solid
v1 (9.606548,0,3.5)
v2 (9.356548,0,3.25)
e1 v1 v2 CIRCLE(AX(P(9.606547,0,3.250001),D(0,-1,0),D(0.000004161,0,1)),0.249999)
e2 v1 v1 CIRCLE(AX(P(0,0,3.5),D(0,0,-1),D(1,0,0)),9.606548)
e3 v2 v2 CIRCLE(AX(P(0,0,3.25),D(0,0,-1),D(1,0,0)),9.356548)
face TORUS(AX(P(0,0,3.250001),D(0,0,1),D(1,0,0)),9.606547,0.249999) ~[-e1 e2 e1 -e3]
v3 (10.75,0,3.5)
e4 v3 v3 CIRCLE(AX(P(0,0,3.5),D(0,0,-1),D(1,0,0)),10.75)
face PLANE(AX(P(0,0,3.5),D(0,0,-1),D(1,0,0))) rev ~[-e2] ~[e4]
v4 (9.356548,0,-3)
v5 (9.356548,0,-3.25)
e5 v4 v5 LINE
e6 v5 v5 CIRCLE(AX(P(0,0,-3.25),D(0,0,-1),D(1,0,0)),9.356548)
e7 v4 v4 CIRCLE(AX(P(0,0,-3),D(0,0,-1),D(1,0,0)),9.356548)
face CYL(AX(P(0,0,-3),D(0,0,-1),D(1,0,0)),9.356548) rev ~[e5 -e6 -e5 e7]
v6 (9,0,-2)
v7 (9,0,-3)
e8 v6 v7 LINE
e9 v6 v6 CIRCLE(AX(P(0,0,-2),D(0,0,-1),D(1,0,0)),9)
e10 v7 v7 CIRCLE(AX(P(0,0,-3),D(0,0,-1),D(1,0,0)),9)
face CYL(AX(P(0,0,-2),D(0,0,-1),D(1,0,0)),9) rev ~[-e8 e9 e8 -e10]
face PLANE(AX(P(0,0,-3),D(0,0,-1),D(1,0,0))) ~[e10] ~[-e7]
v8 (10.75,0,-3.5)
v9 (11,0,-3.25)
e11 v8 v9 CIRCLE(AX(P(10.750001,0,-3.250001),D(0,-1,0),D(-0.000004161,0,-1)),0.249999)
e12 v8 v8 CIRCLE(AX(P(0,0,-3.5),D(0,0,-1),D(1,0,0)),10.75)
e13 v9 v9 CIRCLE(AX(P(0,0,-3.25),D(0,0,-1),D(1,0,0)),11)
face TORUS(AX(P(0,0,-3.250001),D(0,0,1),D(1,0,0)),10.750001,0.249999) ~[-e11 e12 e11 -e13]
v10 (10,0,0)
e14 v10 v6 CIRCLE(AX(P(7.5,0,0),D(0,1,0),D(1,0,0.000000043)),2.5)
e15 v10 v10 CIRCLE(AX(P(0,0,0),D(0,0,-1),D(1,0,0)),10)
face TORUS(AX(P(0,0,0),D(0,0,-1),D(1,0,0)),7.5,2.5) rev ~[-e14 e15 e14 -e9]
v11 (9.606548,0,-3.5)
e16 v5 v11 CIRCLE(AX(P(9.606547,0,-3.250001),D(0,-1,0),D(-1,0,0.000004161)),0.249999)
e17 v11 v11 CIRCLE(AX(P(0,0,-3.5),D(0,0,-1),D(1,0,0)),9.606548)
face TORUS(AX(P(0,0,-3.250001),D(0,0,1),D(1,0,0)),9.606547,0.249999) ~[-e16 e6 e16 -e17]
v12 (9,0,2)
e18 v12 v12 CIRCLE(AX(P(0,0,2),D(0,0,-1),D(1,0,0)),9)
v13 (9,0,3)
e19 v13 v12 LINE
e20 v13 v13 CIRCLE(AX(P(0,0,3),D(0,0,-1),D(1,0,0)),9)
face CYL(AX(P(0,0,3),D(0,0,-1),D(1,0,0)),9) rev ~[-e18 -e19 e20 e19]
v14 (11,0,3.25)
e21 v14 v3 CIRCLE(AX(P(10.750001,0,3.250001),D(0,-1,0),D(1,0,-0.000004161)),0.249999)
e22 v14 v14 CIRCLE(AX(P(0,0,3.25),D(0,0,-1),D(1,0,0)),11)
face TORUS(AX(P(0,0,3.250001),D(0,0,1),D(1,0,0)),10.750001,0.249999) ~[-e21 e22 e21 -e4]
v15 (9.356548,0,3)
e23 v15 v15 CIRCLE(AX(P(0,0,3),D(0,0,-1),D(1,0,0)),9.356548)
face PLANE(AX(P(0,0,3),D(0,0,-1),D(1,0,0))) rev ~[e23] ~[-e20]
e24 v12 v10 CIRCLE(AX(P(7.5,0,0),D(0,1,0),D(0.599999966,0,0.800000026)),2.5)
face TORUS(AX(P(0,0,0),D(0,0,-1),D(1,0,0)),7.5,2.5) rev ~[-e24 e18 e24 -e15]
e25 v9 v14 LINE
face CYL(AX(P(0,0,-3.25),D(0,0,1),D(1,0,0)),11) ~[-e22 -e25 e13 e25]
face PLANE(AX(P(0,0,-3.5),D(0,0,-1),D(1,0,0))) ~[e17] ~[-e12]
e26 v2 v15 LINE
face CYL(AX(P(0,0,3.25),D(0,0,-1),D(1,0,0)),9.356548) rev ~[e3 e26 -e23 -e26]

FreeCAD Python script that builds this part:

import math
import FreeCAD as App
import Part
import Sketcher

doc = App.newDocument("Part")
params = doc.addObject("Spreadsheet::Sheet", "Params")
for row, (alias, value) in enumerate([
    ("sketch1_radius", "2.5 mm"),
    ("sketch1_height", "1 mm"),
    ("sketch1_radius2", "0.249999 mm"),
    ("sketch1_height2", "6.5 mm"),
    ("revolution_angle", "360 deg"),
], start=1):
    params.set(f"A{row}", alias)
    params.set(f"B{row}", "=" + value)
    params.setAlias(f"B{row}", alias)

body = doc.addObject("PartDesign::Body", "Body")

# Sketch on XZ plane
sketch1 = doc.addObject("Sketcher::SketchObject", "Sketch")
body.addObject(sketch1)
sketch1.AttachmentSupport = (doc.XZ_Plane, [""])
sketch1.MapMode = "FlatFace"
sketch1.addGeometry([
    Part.ArcOfCircle(Part.Circle(App.Vector(7.5, 0, 0), App.Vector(0, 0, 1), 2.5), math.radians(0), math.radians(53)),  # 0
    Part.ArcOfCircle(Part.Circle(App.Vector(7.5, 0, 0), App.Vector(0, 0, 1), 2.5), math.radians(-53), math.radians(0)),  # 1
    Part.LineSegment(App.Vector(9, -2, 0), App.Vector(9, -3, 0)),  # 2
    Part.LineSegment(App.Vector(9, -3, 0), App.Vector(9.36, -3, 0)),  # 3
    Part.LineSegment(App.Vector(9.36, -3, 0), App.Vector(9.36, -3.25, 0)),  # 4
    Part.ArcOfCircle(Part.Circle(App.Vector(9.61, -3.25, 0), App.Vector(0, 0, 1), 0.25), math.radians(180), math.radians(270)),  # 5
    Part.LineSegment(App.Vector(9.61, -3.5, 0), App.Vector(10.75, -3.5, 0)),  # 6
    Part.ArcOfCircle(Part.Circle(App.Vector(10.75, -3.25, 0), App.Vector(0, 0, 1), 0.25), math.radians(-90), math.radians(0)),  # 7
    Part.LineSegment(App.Vector(11, -3.25, 0), App.Vector(11, 3.25, 0)),  # 8
    Part.ArcOfCircle(Part.Circle(App.Vector(10.75, 3.25, 0), App.Vector(0, 0, 1), 0.25), math.radians(0), math.radians(90)),  # 9
    Part.LineSegment(App.Vector(10.75, 3.5, 0), App.Vector(9.61, 3.5, 0)),  # 10
    Part.ArcOfCircle(Part.Circle(App.Vector(9.61, 3.25, 0), App.Vector(0, 0, 1), 0.25), math.radians(90), math.radians(180)),  # 11
    Part.LineSegment(App.Vector(9.36, 3.25, 0), App.Vector(9.36, 3, 0)),  # 12
    Part.LineSegment(App.Vector(9.36, 3, 0), App.Vector(9, 3, 0)),  # 13
    Part.LineSegment(App.Vector(9, 3, 0), App.Vector(9, 2, 0)),  # 14
], False)
sketch1.addConstraint([
    Sketcher.Constraint("Tangent", 0, 1, 1, 2),
    Sketcher.Constraint("Coincident", 1, 1, 2, 1),
    Sketcher.Constraint("Coincident", 2, 2, 3, 1),
    Sketcher.Constraint("Coincident", 3, 2, 4, 1),
    Sketcher.Constraint("Coincident", 4, 2, 5, 1),
    Sketcher.Constraint("Coincident", 5, 2, 6, 1),
    Sketcher.Constraint("Coincident", 6, 2, 7, 1),
    Sketcher.Constraint("Coincident", 7, 2, 8, 1),
    Sketcher.Constraint("Coincident", 8, 2, 9, 1),
    Sketcher.Constraint("Coincident", 9, 2, 10, 1),
    Sketcher.Constraint("Coincident", 10, 2, 11, 1),
    Sketcher.Constraint("Coincident", 11, 2, 12, 1),
    Sketcher.Constraint("Coincident", 12, 2, 13, 1),
    Sketcher.Constraint("Coincident", 13, 2, 14, 1),
    Sketcher.Constraint("Coincident", 14, 2, 0, 2),
    Sketcher.Constraint("Vertical", 2),
    Sketcher.Constraint("Horizontal", 3),
    Sketcher.Constraint("Vertical", 4),
    Sketcher.Constraint("Horizontal", 6),
    Sketcher.Constraint("Vertical", 8),
    Sketcher.Constraint("Horizontal", 10),
    Sketcher.Constraint("Vertical", 12),
    Sketcher.Constraint("Horizontal", 13),
    Sketcher.Constraint("Vertical", 14),
    Sketcher.Constraint("Equal", 0, 1),
    Sketcher.Constraint("Equal", 5, 7),
    Sketcher.Constraint("Equal", 7, 9),
    Sketcher.Constraint("Equal", 9, 11),
    Sketcher.Constraint("Symmetric", 5, 3, 11, 3, -1),
    Sketcher.Constraint("Symmetric", 2, 2, 13, 2, -1),
    Sketcher.Constraint("PointOnObject", 0, 3, -1),
    Sketcher.Constraint("PointOnObject", 0, 1, -1),
    Sketcher.Constraint("Horizontal", 7, 3, 4, 2),
    Sketcher.Constraint("Horizontal", 4, 2, 7, 2),
    Sketcher.Constraint("Horizontal", 11, 3, 8, 2),
    Sketcher.Constraint("Horizontal", 8, 2, 11, 2),
    Sketcher.Constraint("Vertical", 11, 3, 5, 2),
    Sketcher.Constraint("Vertical", 9, 3, 6, 2),
    Sketcher.Constraint("Vertical", 6, 2, 9, 2),
    Sketcher.Constraint("Vertical", 5, 2, 10, 2),
    Sketcher.Constraint("Radius", 0, 2.5),
    Sketcher.Constraint("DistanceY", 2, 2, 2, 1, 1.0),
    Sketcher.Constraint("Radius", 5, 0.249999),
    Sketcher.Constraint("DistanceY", 8, 1, 8, 2, 6.5),
    Sketcher.Constraint("DistanceX", -1, 1, 0, 1, 10.0),
    Sketcher.Constraint("DistanceX", -1, 1, 1, 1, 9.0),
    Sketcher.Constraint("DistanceX", -1, 1, 7, 2, 11.0),
    Sketcher.Constraint("DistanceX", 3, 1, 3, 2, 0.356548),
])
sketch1.setExpression("Constraints[40]", "Params.sketch1_radius")
sketch1.setExpression("Constraints[41]", "Params.sketch1_height")
sketch1.setExpression("Constraints[42]", "Params.sketch1_radius2")
sketch1.setExpression("Constraints[43]", "Params.sketch1_height2")
revolution = doc.addObject("PartDesign::Revolution", "Revolution")
body.addObject(revolution)
revolution.Profile = sketch1
revolution.ReferenceAxis = (sketch1, ["V_Axis"])
revolution.setExpression("Angle", "Params.revolution_angle")

doc.recompute()
